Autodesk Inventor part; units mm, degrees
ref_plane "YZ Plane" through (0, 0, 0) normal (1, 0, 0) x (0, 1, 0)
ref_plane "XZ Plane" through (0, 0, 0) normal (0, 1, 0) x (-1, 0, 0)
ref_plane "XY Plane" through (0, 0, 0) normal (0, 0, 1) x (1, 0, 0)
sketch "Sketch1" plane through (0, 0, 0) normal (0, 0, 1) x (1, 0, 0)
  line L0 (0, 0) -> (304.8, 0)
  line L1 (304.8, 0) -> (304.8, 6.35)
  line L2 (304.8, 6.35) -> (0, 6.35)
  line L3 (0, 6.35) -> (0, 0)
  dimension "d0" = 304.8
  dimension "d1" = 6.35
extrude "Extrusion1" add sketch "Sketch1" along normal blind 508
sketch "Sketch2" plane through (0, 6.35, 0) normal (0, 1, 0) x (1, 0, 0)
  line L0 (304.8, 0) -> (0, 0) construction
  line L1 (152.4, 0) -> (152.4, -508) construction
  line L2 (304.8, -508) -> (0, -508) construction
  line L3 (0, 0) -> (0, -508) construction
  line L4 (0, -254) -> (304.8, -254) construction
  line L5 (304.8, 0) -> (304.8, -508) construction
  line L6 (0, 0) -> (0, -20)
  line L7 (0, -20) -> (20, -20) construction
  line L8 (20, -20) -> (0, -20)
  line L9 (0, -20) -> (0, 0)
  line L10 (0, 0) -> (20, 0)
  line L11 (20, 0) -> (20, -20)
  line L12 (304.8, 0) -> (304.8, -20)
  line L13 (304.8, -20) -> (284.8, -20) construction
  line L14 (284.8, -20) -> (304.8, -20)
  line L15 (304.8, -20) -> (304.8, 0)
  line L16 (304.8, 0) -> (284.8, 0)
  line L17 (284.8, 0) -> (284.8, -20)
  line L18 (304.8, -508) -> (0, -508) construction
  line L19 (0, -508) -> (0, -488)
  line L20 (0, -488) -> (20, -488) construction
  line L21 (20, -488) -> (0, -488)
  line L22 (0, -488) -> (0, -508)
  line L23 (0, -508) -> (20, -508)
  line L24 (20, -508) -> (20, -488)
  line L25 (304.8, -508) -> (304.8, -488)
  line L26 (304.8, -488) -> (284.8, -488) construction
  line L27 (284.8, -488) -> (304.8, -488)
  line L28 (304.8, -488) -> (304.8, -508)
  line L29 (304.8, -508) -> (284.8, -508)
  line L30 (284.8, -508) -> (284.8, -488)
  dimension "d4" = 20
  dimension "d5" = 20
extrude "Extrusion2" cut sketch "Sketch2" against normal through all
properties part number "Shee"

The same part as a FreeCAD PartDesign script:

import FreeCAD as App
import Part
import Sketcher
Q = App.Units.Quantity

doc = App.newDocument("Part")
body = doc.addObject("PartDesign::Body", "Body")

sketch1 = doc.addObject("Sketcher::SketchObject", "Sketch")
body.addObject(sketch1)
sketch1.AttachmentSupport = (doc.XY_Plane, [""])
sketch1.MapMode = "FlatFace"
sketch1.addGeometry(Part.LineSegment(App.Vector(0, 6.35, 0), App.Vector(0, 0, 0)), False)
sketch1.addGeometry(Part.LineSegment(App.Vector(0, 0, 0), App.Vector(304.8, 0, 0)), False)
sketch1.addGeometry(Part.LineSegment(App.Vector(304.8, 0, 0), App.Vector(304.8, 6.35, 0)), False)
sketch1.addGeometry(Part.LineSegment(App.Vector(304.8, 6.35, 0), App.Vector(0, 6.35, 0)), False)
sketch1.addConstraint(Sketcher.Constraint("Coincident", 0, 2, 1, 1))
sketch1.addConstraint(Sketcher.Constraint("Coincident", 1, 2, 2, 1))
sketch1.addConstraint(Sketcher.Constraint("Coincident", 2, 2, 3, 1))
sketch1.addConstraint(Sketcher.Constraint("Coincident", 3, 2, 0, 1))
sketch1.addConstraint(Sketcher.Constraint("Vertical", 0))
sketch1.addConstraint(Sketcher.Constraint("Horizontal", 1))
sketch1.addConstraint(Sketcher.Constraint("Vertical", 2))
sketch1.addConstraint(Sketcher.Constraint("Horizontal", 3))
sketch1.addConstraint(Sketcher.Constraint("Coincident", 0, 2, -1, 1))
sketch1.addConstraint(Sketcher.Constraint("DistanceX", 1, 1, 1, 2, Q("12 in")))
sketch1.addConstraint(Sketcher.Constraint("DistanceY", 0, 2, 0, 1, Q("0.25 in")))
pad1 = doc.addObject("PartDesign::Pad", "Pad")
body.addObject(pad1)
pad1.Profile = sketch1
pad1.Length = Q("20 in")

sketch2 = doc.addObject("Sketcher::SketchObject", "Sketch001")
body.addObject(sketch2)
sketch2.AttachmentSupport = (doc.XZ_Plane, [""])
sketch2.MapMode = "FlatFace"
sketch2.AttachmentOffset = App.Placement(App.Vector(0, 0, -0.25 * 25.4), App.Rotation())
sketch2.addGeometry(Part.LineSegment(App.Vector(20, 0, 0), App.Vector(0, 0, 0)), False)
sketch2.addGeometry(Part.LineSegment(App.Vector(0, 0, 0), App.Vector(0, 20, 0)), False)
sketch2.addGeometry(Part.LineSegment(App.Vector(0, 20, 0), App.Vector(20, 20, 0)), False)
sketch2.addGeometry(Part.LineSegment(App.Vector(20, 20, 0), App.Vector(20, 0, 0)), False)
sketch2.addGeometry(Part.LineSegment(App.Vector(304.8, 20, 0), App.Vector(304.8, 0, 0)), False)
sketch2.addGeometry(Part.LineSegment(App.Vector(304.8, 0, 0), App.Vector(284.8, 0, 0)), False)
sketch2.addGeometry(Part.LineSegment(App.Vector(284.8, 0, 0), App.Vector(284.8, 20, 0)), False)
sketch2.addGeometry(Part.LineSegment(App.Vector(284.8, 20, 0), App.Vector(304.8, 20, 0)), False)
sketch2.addGeometry(Part.LineSegment(App.Vector(0, 488, 0), App.Vector(0, 508, 0)), False)
sketch2.addGeometry(Part.LineSegment(App.Vector(0, 508, 0), App.Vector(20, 508, 0)), False)
sketch2.addGeometry(Part.LineSegment(App.Vector(20, 508, 0), App.Vector(20, 488, 0)), False)
sketch2.addGeometry(Part.LineSegment(App.Vector(20, 488, 0), App.Vector(0, 488, 0)), False)
sketch2.addGeometry(Part.LineSegment(App.Vector(284.8, 508, 0), App.Vector(304.8, 508, 0)), False)
sketch2.addGeometry(Part.LineSegment(App.Vector(304.8, 508, 0), App.Vector(304.8, 488, 0)), False)
sketch2.addGeometry(Part.LineSegment(App.Vector(304.8, 488, 0), App.Vector(284.8, 488, 0)), False)
sketch2.addGeometry(Part.LineSegment(App.Vector(284.8, 488, 0), App.Vector(284.8, 508, 0)), False)
sketch2.addConstraint(Sketcher.Constraint("Coincident", 0, 2, 1, 1))
sketch2.addConstraint(Sketcher.Constraint("Coincident", 1, 2, 2, 1))
sketch2.addConstraint(Sketcher.Constraint("Coincident", 2, 2, 3, 1))
sketch2.addConstraint(Sketcher.Constraint("Coincident", 3, 2, 0, 1))
sketch2.addConstraint(Sketcher.Constraint("Coincident", 4, 2, 5, 1))
sketch2.addConstraint(Sketcher.Constraint("Coincident", 5, 2, 6, 1))
sketch2.addConstraint(Sketcher.Constraint("Coincident", 6, 2, 7, 1))
sketch2.addConstraint(Sketcher.Constraint("Coincident", 7, 2, 4, 1))
sketch2.addConstraint(Sketcher.Constraint("Coincident", 8, 2, 9, 1))
sketch2.addConstraint(Sketcher.Constraint("Coincident", 9, 2, 10, 1))
sketch2.addConstraint(Sketcher.Constraint("Coincident", 10, 2, 11, 1))
sketch2.addConstraint(Sketcher.Constraint("Coincident", 11, 2, 8, 1))
sketch2.addConstraint(Sketcher.Constraint("Coincident", 12, 2, 13, 1))
sketch2.addConstraint(Sketcher.Constraint("Coincident", 13, 2, 14, 1))
sketch2.addConstraint(Sketcher.Constraint("Coincident", 14, 2, 15, 1))
sketch2.addConstraint(Sketcher.Constraint("Coincident", 15, 2, 12, 1))
sketch2.addConstraint(Sketcher.Constraint("Horizontal", 0))
sketch2.addConstraint(Sketcher.Constraint("Vertical", 1))
sketch2.addConstraint(Sketcher.Constraint("Horizontal", 2))
sketch2.addConstraint(Sketcher.Constraint("Vertical", 3))
sketch2.addConstraint(Sketcher.Constraint("Vertical", 4))
sketch2.addConstraint(Sketcher.Constraint("Horizontal", 5))
sketch2.addConstraint(Sketcher.Constraint("Vertical", 6))
sketch2.addConstraint(Sketcher.Constraint("Horizontal", 7))
sketch2.addConstraint(Sketcher.Constraint("Vertical", 8))
sketch2.addConstraint(Sketcher.Constraint("Horizontal", 9))
sketch2.addConstraint(Sketcher.Constraint("Vertical", 10))
sketch2.addConstraint(Sketcher.Constraint("Horizontal", 11))
sketch2.addConstraint(Sketcher.Constraint("Horizontal", 12))
sketch2.addConstraint(Sketcher.Constraint("Vertical", 13))
sketch2.addConstraint(Sketcher.Constraint("Horizontal", 14))
sketch2.addConstraint(Sketcher.Constraint("Vertical", 15))
sketch2.addConstraint(Sketcher.Constraint("Coincident", 0, 2, -1, 1))
sketch2.addConstraint(Sketcher.Constraint("PointOnObject", 4, 2, -1))
sketch2.addConstraint(Sketcher.Constraint("PointOnObject", 8, 2, -2))
sketch2.addConstraint(Sketcher.Constraint("Horizontal", 2, 2, 6, 2))
sketch2.addConstraint(Sketcher.Constraint("Horizontal", 9, 2, 12, 2))
sketch2.addConstraint(Sketcher.Constraint("Horizontal", 11, 2, 13, 2))
sketch2.addConstraint(Sketcher.Constraint("Vertical", 3, 2, 9, 2))
sketch2.addConstraint(Sketcher.Constraint("Vertical", 7, 2, 12, 2))
sketch2.addConstraint(Sketcher.Constraint("Vertical", 6, 2, 14, 2))
sketch2.addConstraint(Sketcher.Constraint("Equal", 2, 5))
sketch2.addConstraint(Sketcher.Constraint("Equal", 14, 1))
sketch2.addConstraint(Sketcher.Constraint("Equal", 6, 8))
sketch2.addConstraint(Sketcher.Constraint("DistanceX", 0, 2, 0, 1, Q("0.7874 in")))
sketch2.addConstraint(Sketcher.Constraint("DistanceX", -1, 1, 4, 2, Q("12 in")))
sketch2.addConstraint(Sketcher.Constraint("DistanceY", -1, 1, 8, 2, Q("20 in")))
pocket1 = doc.addObject("PartDesign::Pocket", "Pocket")
body.addObject(pocket1)
pocket1.Profile = sketch2
pocket1.Type = "ThroughAll"
pocket1.Reversed = True

doc.recompute()
